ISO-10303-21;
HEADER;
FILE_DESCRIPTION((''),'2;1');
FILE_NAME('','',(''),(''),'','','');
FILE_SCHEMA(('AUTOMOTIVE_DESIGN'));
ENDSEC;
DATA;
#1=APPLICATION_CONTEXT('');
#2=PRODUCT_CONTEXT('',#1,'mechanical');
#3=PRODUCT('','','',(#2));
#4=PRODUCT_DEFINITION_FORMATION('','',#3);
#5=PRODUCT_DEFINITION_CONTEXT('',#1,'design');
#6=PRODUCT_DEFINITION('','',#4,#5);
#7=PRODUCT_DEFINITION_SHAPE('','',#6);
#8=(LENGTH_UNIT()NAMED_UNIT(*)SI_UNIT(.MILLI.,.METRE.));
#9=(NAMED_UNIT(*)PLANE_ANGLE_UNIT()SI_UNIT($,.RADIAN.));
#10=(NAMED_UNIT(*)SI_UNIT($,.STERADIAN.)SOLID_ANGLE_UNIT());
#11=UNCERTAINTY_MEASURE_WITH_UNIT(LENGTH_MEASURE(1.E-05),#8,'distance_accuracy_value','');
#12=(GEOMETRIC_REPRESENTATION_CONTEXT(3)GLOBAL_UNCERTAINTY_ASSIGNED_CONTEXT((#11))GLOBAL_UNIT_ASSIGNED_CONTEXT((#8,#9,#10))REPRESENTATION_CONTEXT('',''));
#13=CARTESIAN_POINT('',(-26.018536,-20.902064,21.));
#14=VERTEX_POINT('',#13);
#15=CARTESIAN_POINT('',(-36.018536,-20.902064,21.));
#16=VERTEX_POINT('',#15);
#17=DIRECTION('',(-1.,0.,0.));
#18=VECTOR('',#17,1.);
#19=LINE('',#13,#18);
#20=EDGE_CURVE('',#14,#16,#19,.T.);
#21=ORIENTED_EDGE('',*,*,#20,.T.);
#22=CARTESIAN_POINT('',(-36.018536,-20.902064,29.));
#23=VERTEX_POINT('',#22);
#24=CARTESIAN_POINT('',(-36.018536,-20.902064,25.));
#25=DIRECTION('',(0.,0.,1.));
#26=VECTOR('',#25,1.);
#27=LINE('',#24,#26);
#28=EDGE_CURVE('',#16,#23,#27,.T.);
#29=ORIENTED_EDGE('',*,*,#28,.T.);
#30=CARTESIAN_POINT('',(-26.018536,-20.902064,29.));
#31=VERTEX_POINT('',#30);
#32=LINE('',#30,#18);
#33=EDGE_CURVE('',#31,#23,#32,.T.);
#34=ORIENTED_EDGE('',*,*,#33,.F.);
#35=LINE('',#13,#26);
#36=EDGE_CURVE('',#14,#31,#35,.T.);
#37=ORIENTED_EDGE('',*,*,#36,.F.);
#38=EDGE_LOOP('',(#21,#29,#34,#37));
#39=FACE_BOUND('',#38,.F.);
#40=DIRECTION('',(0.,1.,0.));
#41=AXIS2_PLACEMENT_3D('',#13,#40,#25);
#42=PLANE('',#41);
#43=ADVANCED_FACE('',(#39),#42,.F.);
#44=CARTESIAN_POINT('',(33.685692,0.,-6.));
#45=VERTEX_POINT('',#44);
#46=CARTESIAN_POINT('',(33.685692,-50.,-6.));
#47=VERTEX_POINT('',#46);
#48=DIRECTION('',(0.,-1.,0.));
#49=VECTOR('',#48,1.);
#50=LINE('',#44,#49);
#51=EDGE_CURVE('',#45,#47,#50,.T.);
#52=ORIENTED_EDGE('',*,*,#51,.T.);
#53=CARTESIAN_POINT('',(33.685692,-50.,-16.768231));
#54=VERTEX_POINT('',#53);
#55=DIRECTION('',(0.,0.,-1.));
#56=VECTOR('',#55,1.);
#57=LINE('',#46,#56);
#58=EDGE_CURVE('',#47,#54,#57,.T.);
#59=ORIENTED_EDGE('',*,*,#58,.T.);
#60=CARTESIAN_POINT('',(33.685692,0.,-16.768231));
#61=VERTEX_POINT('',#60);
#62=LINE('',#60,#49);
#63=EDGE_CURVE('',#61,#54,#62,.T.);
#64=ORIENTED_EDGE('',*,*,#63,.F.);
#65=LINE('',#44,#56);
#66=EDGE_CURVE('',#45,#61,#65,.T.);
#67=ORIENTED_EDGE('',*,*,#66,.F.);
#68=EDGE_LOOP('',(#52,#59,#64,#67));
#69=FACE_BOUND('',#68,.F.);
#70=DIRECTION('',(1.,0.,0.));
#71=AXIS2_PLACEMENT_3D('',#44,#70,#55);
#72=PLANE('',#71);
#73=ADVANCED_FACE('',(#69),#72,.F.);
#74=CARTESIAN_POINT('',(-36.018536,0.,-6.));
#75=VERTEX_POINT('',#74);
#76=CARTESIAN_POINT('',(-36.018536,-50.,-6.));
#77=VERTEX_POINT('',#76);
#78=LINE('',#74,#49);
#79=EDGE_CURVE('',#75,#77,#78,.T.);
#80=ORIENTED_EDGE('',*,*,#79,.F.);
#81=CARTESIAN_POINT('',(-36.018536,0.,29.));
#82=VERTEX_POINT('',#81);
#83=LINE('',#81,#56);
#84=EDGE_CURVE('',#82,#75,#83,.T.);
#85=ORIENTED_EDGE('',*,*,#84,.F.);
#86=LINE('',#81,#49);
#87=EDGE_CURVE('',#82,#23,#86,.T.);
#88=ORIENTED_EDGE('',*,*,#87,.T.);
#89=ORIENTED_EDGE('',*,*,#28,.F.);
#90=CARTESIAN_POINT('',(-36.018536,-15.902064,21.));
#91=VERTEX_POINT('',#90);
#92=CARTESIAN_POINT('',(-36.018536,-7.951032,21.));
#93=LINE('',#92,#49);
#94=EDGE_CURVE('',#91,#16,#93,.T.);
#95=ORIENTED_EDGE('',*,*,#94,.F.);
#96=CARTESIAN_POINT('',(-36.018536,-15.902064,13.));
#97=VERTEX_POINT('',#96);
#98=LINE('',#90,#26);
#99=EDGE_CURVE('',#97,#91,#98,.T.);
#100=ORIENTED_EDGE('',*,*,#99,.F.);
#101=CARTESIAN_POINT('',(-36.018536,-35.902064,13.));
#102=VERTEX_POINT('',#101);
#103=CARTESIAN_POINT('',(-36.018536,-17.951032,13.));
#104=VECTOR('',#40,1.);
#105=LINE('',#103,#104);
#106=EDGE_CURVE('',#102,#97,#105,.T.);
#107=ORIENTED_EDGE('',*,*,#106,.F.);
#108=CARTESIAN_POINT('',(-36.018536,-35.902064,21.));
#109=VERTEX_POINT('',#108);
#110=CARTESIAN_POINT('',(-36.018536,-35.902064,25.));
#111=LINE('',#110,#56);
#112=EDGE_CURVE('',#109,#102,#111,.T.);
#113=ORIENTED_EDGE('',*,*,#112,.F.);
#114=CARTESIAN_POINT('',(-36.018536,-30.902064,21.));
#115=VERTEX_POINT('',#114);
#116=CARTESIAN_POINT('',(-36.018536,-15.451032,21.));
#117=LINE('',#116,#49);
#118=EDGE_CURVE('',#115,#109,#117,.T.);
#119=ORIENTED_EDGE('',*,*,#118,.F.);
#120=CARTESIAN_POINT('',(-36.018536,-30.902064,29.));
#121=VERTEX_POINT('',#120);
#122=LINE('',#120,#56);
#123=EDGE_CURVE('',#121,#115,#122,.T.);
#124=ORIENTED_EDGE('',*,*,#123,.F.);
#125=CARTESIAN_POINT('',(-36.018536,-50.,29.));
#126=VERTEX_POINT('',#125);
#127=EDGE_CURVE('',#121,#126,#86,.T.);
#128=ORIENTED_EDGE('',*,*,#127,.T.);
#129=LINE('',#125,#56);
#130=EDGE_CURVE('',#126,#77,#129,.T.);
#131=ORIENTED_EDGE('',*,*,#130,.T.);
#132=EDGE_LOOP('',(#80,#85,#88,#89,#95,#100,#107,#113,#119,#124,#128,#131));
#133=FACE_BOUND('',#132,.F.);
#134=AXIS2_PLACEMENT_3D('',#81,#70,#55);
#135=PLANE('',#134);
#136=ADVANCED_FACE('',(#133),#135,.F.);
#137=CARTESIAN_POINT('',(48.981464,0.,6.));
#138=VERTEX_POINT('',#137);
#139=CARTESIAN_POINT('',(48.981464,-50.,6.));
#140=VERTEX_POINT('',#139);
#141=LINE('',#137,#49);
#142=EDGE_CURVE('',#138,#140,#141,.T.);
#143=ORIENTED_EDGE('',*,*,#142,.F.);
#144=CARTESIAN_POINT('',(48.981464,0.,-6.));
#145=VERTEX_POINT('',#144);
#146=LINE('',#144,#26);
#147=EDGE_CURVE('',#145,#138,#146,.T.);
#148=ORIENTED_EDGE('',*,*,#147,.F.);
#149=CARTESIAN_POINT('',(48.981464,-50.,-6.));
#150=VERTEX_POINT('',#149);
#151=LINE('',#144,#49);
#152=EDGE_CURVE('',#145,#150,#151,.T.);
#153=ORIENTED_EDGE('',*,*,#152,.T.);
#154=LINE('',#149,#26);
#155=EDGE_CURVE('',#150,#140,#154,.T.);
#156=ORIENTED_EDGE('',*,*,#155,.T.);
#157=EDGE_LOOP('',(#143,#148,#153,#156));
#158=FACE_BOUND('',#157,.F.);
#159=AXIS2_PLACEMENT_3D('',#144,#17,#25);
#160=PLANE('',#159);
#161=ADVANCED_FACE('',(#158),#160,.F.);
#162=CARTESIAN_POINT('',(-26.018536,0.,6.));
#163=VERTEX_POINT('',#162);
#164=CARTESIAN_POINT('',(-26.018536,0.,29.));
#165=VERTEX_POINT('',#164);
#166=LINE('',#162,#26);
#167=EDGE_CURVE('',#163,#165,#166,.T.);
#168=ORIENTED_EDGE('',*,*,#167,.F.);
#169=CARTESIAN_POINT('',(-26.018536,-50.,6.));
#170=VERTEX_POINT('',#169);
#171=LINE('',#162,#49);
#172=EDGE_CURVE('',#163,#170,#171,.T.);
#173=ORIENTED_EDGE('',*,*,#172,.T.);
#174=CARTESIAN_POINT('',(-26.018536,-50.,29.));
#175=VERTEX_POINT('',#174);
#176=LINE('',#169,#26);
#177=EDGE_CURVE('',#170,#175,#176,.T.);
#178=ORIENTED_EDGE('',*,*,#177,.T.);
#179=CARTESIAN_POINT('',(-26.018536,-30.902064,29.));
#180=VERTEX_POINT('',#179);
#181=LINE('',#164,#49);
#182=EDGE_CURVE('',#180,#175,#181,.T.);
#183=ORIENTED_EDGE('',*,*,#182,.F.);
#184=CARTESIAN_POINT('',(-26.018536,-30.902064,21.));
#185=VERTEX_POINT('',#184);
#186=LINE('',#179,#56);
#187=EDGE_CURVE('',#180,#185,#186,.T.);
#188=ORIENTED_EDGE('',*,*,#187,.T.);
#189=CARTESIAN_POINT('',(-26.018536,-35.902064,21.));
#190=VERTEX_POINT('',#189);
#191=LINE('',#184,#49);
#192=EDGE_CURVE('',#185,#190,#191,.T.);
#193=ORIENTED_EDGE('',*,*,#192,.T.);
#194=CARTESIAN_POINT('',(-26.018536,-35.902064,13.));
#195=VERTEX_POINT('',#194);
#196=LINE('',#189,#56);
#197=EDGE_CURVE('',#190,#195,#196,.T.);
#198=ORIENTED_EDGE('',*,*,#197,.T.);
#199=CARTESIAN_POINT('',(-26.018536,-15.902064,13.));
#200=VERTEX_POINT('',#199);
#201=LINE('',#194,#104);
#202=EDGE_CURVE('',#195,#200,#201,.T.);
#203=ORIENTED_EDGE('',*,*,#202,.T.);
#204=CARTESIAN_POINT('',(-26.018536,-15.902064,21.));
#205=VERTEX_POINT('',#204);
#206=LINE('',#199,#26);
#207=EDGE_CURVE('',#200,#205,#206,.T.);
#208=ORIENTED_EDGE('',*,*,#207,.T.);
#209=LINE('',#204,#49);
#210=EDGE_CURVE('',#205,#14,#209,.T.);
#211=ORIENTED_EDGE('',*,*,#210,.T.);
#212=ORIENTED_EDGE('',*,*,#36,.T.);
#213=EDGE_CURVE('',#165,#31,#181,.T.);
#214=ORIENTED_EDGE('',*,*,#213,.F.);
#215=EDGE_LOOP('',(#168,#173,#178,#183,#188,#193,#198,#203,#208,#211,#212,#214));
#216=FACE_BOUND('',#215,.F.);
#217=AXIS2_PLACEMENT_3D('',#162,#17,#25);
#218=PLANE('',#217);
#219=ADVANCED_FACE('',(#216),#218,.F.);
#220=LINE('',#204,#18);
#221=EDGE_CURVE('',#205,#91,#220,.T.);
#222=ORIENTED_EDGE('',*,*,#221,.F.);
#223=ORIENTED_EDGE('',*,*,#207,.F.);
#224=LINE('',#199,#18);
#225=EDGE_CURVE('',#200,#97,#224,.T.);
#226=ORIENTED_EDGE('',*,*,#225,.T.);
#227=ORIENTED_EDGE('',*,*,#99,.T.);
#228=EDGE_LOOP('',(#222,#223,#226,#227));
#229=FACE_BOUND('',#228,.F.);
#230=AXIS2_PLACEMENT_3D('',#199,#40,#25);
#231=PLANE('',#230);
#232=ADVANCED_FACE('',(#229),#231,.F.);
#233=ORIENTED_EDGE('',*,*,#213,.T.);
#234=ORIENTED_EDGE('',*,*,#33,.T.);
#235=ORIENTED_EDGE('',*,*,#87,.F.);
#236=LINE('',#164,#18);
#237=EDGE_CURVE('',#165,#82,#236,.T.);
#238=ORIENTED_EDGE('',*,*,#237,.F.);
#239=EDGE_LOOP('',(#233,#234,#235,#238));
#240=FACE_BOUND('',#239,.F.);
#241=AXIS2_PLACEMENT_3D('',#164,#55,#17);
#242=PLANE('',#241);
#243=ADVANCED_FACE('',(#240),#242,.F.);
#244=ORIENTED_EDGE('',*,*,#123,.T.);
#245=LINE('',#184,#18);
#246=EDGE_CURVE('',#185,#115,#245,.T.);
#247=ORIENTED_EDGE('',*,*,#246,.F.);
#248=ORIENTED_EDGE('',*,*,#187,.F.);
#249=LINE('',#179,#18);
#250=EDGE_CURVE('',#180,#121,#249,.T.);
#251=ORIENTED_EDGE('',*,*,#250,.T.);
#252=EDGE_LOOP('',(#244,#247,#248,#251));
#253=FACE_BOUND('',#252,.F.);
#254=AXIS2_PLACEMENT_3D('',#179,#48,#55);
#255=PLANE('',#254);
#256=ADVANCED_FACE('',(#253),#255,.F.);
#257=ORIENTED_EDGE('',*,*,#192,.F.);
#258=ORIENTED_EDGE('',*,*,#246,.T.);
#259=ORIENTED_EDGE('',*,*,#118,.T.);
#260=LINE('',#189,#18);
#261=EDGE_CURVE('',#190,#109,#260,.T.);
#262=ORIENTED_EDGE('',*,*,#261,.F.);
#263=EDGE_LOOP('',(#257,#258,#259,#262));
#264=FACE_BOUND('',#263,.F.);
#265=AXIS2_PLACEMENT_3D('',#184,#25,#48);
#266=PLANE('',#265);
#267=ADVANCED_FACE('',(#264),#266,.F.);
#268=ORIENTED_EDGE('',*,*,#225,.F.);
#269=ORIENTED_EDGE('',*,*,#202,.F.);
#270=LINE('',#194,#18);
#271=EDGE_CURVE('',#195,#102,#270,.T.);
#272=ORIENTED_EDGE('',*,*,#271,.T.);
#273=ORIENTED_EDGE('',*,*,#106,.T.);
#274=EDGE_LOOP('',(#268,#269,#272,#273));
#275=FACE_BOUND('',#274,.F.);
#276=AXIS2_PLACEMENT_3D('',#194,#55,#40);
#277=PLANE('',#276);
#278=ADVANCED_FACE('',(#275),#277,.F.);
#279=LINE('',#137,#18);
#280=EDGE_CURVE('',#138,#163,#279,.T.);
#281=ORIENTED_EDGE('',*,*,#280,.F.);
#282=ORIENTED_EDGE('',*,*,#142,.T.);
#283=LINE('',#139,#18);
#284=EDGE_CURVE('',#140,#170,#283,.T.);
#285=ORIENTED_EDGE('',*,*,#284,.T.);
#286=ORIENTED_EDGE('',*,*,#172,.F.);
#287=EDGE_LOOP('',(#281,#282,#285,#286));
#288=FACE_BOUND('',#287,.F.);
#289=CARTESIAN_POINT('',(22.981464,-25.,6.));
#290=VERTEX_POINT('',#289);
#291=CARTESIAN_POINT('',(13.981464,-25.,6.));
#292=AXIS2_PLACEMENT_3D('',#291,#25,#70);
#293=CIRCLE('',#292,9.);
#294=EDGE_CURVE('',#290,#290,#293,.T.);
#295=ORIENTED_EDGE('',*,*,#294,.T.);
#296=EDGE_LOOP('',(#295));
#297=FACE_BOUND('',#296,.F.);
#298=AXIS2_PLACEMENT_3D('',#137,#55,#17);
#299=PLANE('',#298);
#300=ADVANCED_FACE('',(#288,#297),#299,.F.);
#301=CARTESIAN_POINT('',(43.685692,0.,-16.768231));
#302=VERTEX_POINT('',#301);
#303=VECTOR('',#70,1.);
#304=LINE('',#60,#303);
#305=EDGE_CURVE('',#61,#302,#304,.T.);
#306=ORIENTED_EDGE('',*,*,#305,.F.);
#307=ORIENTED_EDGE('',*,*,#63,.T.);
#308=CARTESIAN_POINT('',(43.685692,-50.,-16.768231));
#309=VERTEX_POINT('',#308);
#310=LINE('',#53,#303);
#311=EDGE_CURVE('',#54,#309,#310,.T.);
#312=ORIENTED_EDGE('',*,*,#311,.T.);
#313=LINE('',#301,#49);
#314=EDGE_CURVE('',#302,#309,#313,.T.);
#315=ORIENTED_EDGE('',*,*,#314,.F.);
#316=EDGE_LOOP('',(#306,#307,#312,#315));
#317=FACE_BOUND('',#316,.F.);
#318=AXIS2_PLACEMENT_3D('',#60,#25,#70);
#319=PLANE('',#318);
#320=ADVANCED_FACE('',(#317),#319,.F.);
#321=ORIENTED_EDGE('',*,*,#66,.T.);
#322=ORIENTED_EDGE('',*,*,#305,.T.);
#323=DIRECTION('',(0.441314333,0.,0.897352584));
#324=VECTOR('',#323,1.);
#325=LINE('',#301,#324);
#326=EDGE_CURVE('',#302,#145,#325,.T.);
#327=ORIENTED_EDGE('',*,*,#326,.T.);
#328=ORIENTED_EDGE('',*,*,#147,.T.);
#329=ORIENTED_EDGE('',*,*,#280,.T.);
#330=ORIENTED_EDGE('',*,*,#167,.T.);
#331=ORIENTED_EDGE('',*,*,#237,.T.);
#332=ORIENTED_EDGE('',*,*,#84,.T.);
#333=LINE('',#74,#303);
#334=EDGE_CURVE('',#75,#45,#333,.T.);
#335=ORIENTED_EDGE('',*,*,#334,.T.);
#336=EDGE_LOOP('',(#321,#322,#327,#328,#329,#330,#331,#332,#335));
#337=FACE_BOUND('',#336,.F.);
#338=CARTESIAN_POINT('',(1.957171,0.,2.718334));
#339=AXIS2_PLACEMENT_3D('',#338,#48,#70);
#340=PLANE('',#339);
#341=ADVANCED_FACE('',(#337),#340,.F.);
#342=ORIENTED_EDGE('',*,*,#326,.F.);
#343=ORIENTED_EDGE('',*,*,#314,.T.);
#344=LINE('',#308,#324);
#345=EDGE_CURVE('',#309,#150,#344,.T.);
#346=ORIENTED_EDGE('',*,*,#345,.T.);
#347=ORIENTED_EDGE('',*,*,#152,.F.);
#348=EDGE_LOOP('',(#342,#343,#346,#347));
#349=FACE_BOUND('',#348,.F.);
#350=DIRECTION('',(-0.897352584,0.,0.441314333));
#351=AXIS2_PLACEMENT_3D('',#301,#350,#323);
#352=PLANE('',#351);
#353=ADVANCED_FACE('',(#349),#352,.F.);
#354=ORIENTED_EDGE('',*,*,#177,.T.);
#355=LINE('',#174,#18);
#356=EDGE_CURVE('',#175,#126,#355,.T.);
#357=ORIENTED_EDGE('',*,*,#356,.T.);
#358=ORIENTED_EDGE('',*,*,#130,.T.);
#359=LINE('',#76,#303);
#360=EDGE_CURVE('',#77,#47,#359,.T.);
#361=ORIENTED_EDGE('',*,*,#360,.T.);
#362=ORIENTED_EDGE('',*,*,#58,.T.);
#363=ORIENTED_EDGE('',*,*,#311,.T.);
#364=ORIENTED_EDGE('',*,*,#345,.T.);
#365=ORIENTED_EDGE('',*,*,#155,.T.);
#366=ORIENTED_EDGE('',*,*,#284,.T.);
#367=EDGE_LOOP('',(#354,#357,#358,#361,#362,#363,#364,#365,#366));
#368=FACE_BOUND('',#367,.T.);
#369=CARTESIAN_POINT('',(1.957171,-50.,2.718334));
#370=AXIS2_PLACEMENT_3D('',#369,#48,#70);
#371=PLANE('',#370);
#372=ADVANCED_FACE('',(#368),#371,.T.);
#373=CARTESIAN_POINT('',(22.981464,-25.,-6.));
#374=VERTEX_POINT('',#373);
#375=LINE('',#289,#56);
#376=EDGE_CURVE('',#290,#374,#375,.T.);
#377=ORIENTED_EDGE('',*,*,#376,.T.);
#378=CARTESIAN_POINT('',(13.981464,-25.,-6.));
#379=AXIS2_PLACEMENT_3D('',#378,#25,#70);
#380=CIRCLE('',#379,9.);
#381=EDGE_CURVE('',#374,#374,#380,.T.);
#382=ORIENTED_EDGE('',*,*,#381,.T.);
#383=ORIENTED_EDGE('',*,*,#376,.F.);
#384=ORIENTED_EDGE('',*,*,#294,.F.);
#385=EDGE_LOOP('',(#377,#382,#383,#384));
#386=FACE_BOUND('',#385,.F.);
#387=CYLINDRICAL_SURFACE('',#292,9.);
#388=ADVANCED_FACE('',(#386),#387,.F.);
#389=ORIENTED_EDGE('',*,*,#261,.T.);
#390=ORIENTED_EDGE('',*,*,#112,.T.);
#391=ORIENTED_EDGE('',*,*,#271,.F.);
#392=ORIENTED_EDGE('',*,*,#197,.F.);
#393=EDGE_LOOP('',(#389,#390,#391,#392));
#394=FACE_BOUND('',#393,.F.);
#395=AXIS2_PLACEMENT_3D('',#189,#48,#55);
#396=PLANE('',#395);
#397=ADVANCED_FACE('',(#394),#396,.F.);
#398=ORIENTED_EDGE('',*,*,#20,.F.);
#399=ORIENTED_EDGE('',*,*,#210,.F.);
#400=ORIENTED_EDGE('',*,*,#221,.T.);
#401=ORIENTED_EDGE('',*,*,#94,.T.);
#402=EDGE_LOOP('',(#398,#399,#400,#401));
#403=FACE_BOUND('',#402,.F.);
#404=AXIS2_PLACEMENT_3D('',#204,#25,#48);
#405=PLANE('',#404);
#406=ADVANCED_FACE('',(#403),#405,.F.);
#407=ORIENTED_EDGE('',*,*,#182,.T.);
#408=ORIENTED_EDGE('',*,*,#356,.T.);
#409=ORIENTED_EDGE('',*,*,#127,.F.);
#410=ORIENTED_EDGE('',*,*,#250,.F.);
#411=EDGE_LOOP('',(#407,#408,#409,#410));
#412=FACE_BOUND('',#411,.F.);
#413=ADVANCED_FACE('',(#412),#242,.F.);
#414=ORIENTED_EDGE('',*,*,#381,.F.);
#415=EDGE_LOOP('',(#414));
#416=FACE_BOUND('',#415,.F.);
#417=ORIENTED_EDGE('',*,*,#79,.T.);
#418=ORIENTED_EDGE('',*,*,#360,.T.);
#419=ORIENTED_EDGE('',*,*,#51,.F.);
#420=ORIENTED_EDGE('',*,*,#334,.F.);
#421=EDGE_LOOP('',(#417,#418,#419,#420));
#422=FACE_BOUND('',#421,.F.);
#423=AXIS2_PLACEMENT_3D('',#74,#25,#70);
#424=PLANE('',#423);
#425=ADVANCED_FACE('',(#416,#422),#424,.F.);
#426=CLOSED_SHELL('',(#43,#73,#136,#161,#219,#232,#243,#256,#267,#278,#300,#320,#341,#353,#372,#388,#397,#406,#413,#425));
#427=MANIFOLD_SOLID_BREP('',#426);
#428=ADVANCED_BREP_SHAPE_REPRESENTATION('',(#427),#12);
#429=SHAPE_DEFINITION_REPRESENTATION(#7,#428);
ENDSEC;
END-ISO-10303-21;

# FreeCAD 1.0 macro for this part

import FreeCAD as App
import Part
import Sketcher
from FreeCAD import Vector
Q = App.Units.Quantity

doc = App.newDocument("Part")
body = doc.addObject("PartDesign::Body", "Body")

# Sketch on XZ plane
sketch1 = body.newObject("Sketcher::SketchObject", "Sketch")
sketch1.AttachmentSupport = (doc.getObject("XZ_Plane"), [""])
sketch1.MapMode = "FlatFace"
sketch1.addGeometry([
    Part.LineSegment(Vector(49, 6, 0), Vector(-26, 6, 0)),  # 0
    Part.LineSegment(Vector(-26, 6, 0), Vector(-26, 29, 0)),  # 1
    Part.LineSegment(Vector(-26, 29, 0), Vector(-36, 29, 0)),  # 2
    Part.LineSegment(Vector(-36, 29, 0), Vector(-36, -6, 0)),  # 3
    Part.LineSegment(Vector(-36, -6, 0), Vector(34, -6, 0)),  # 4
    Part.LineSegment(Vector(34, -6, 0), Vector(34, -17, 0)),  # 5
    Part.LineSegment(Vector(34, -17, 0), Vector(44, -17, 0)),  # 6
    Part.LineSegment(Vector(44, -17, 0), Vector(49, -6, 0)),  # 7
    Part.LineSegment(Vector(49, -6, 0), Vector(49, 6, 0)),  # 8
], False)
sketch1.addConstraint([
    Sketcher.Constraint("Coincident", 0, 2, 1, 1),
    Sketcher.Constraint("Coincident", 1, 2, 2, 1),
    Sketcher.Constraint("Coincident", 2, 2, 3, 1),
    Sketcher.Constraint("Coincident", 3, 2, 4, 1),
    Sketcher.Constraint("Coincident", 4, 2, 5, 1),
    Sketcher.Constraint("Coincident", 5, 2, 6, 1),
    Sketcher.Constraint("Coincident", 6, 2, 7, 1),
    Sketcher.Constraint("Coincident", 7, 2, 8, 1),
    Sketcher.Constraint("Coincident", 8, 2, 0, 1),
    Sketcher.Constraint("Horizontal", 0),
    Sketcher.Constraint("Vertical", 1),
    Sketcher.Constraint("Horizontal", 2),
    Sketcher.Constraint("Vertical", 3),
    Sketcher.Constraint("Horizontal", 4),
    Sketcher.Constraint("Vertical", 5),
    Sketcher.Constraint("Horizontal", 6),
    Sketcher.Constraint("Vertical", 8),
    Sketcher.Constraint("Horizontal", 4, 2, 7, 2),
    Sketcher.Constraint("Equal", 2, 6),
    Sketcher.Constraint("DistanceX", 0, 2, 0, 1, Q("75 mm")),
    Sketcher.Constraint("DistanceX", 2, 2, 2, 1, Q("10 mm")),
    Sketcher.Constraint("DistanceY", 1, 1, 1, 2, Q("23 mm")),
    Sketcher.Constraint("DistanceY", 3, 2, 3, 1, Q("35 mm")),
    Sketcher.Constraint("Distance", 7, Q("12 mm")),
    Sketcher.Constraint("DistanceY", -1, 1, 0, 2, Q("6 mm")),
    Sketcher.Constraint("DistanceX", 4, 1, 4, 2, Q("69.704228 mm")),
    Sketcher.Constraint("DistanceX", 0, 2, -1, 1, Q("26.018536 mm")),
])
pad1 = body.newObject("PartDesign::Pad", "Pad")
pad1.Profile = sketch1
pad1.Length = 50

# Sketch on YZ plane
sketch2 = body.newObject("Sketcher::SketchObject", "Sketch001")
sketch2.AttachmentSupport = (doc.getObject("YZ_Plane"), [""])
sketch2.MapMode = "FlatFace"
sketch2.AttachmentOffset = App.Placement(Vector(0, 0, -26.018536), App.Rotation())
sketch2.addGeometry([
    Part.LineSegment(Vector(-21, 29, 0), Vector(-31, 29, 0)),  # 0
    Part.LineSegment(Vector(-31, 29, 0), Vector(-31, 21, 0)),  # 1
    Part.LineSegment(Vector(-31, 21, 0), Vector(-36, 21, 0)),  # 2
    Part.LineSegment(Vector(-36, 21, 0), Vector(-36, 13, 0)),  # 3
    Part.LineSegment(Vector(-36, 13, 0), Vector(-16, 13, 0)),  # 4
    Part.LineSegment(Vector(-16, 13, 0), Vector(-16, 21, 0)),  # 5
    Part.LineSegment(Vector(-16, 21, 0), Vector(-21, 21, 0)),  # 6
    Part.LineSegment(Vector(-21, 21, 0), Vector(-21, 29, 0)),  # 7
], False)
sketch2.addConstraint([
    Sketcher.Constraint("Coincident", 0, 2, 1, 1),
    Sketcher.Constraint("Coincident", 1, 2, 2, 1),
    Sketcher.Constraint("Coincident", 2, 2, 3, 1),
    Sketcher.Constraint("Coincident", 3, 2, 4, 1),
    Sketcher.Constraint("Coincident", 4, 2, 5, 1),
    Sketcher.Constraint("Coincident", 5, 2, 6, 1),
    Sketcher.Constraint("Coincident", 6, 2, 7, 1),
    Sketcher.Constraint("Coincident", 7, 2, 0, 1),
    Sketcher.Constraint("Horizontal", 0),
    Sketcher.Constraint("Vertical", 1),
    Sketcher.Constraint("Horizontal", 2),
    Sketcher.Constraint("Vertical", 3),
    Sketcher.Constraint("Horizontal", 4),
    Sketcher.Constraint("Vertical", 5),
    Sketcher.Constraint("Horizontal", 6),
    Sketcher.Constraint("Vertical", 7),
    Sketcher.Constraint("Horizontal", 2, 2, 5, 2),
    Sketcher.Constraint("Equal", 2, 6),
    Sketcher.Constraint("Equal", 1, 3),
    Sketcher.Constraint("DistanceX", 0, 2, 0, 1, Q("10 mm")),
    Sketcher.Constraint("DistanceX", 2, 2, 2, 1, Q("5 mm")),
    Sketcher.Constraint("DistanceY", 1, 2, 1, 1, Q("8 mm")),
    Sketcher.Constraint("DistanceY", -1, 1, 0, 2, Q("29 mm")),
    Sketcher.Constraint("DistanceX", 0, 2, -1, 1, Q("30.902064 mm")),
])
pocket1 = body.newObject("PartDesign::Pocket", "Pocket")
pocket1.Profile = sketch2
pocket1.Length = 25

# Sketch on XY plane
sketch3 = body.newObject("Sketcher::SketchObject", "Sketch002")
sketch3.AttachmentSupport = (doc.getObject("XY_Plane"), [""])
sketch3.MapMode = "FlatFace"
sketch3.AttachmentOffset = App.Placement(Vector(0, 0, 6), App.Rotation())
sketch3.addGeometry(Part.Circle(Vector(14, -25, 0), Vector(0, 0, 1), 9), False)
sketch3.addConstraint([
    Sketcher.Constraint("Diameter", 0, Q("18 mm")),
    Sketcher.Constraint("DistanceY", 0, 3, -1, 1, Q("25 mm")),
    Sketcher.Constraint("DistanceX", -1, 1, 0, 3, Q("13.981464 mm")),
])
pocket2 = body.newObject("PartDesign::Pocket", "Pocket001")
pocket2.Profile = sketch3
pocket2.Length = 25

doc.recompute()
